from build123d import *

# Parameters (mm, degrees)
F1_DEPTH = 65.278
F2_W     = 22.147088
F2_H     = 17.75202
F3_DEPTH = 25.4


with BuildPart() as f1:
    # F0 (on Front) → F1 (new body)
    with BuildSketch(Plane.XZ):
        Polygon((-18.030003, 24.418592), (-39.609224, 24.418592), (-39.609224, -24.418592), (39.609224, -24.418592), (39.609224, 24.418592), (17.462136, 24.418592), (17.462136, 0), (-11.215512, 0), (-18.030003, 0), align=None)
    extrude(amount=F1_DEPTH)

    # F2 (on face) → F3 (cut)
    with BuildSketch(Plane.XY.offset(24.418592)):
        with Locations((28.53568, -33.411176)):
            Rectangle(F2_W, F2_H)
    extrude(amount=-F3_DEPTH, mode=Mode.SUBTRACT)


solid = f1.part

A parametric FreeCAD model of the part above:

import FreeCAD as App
import Part
import Sketcher
Q = App.Units.Quantity

doc = App.newDocument("Part")
params = doc.addObject("Spreadsheet::Sheet", "Params")
for row, (alias, value) in enumerate([
    ("pad1_length", "2.57 in"),
    ("pocket1_length", "1 in"),
], start=1):
    params.set(f"A{row}", alias)
    params.set(f"B{row}", "=" + value)
    params.setAlias(f"B{row}", alias)

body = doc.addObject("PartDesign::Body", "Body")

# Sketch on XZ plane
sketch1 = body.newObject("Sketcher::SketchObject", "Sketch")
sketch1.AttachmentSupport = (doc.getObject("XZ_Plane"), [""])
sketch1.MapMode = "FlatFace"
sketch1.addGeometry([
    Part.LineSegment(App.Vector(-18, 24, 0), App.Vector(-40, 24, 0)),  # 0
    Part.LineSegment(App.Vector(-40, 24, 0), App.Vector(-40, -24, 0)),  # 1
    Part.LineSegment(App.Vector(-40, -24, 0), App.Vector(40, -24, 0)),  # 2
    Part.LineSegment(App.Vector(40, -24, 0), App.Vector(40, 24, 0)),  # 3
    Part.LineSegment(App.Vector(40, 24, 0), App.Vector(17, 24, 0)),  # 4
    Part.LineSegment(App.Vector(17, 24, 0), App.Vector(17, 0, 0)),  # 5
    Part.LineSegment(App.Vector(17, 0, 0), App.Vector(-18, 0, 0)),  # 6
    Part.LineSegment(App.Vector(-18, 0, 0), App.Vector(-18, 24, 0)),  # 7
], False)
sketch1.addConstraint([
    Sketcher.Constraint("Coincident", 0, 2, 1, 1),
    Sketcher.Constraint("Coincident", 1, 2, 2, 1),
    Sketcher.Constraint("Coincident", 2, 2, 3, 1),
    Sketcher.Constraint("Coincident", 3, 2, 4, 1),
    Sketcher.Constraint("Coincident", 4, 2, 5, 1),
    Sketcher.Constraint("Coincident", 5, 2, 6, 1),
    Sketcher.Constraint("Coincident", 6, 2, 7, 1),
    Sketcher.Constraint("Coincident", 7, 2, 0, 1),
    Sketcher.Constraint("Horizontal", 0),
    Sketcher.Constraint("Vertical", 1),
    Sketcher.Constraint("Horizontal", 2),
    Sketcher.Constraint("Vertical", 3),
    Sketcher.Constraint("Horizontal", 4),
    Sketcher.Constraint("Vertical", 5),
    Sketcher.Constraint("Horizontal", 6),
    Sketcher.Constraint("Vertical", 7),
    Sketcher.Constraint("Symmetric", 0, 2, 2, 2, -1, 1),
    Sketcher.Constraint("PointOnObject", 5, 2, -1),
    Sketcher.Constraint("Horizontal", 0, 2, 3, 2),
    Sketcher.Constraint("DistanceX", 0, 2, 0, 1, Q("21.579221 mm")),
    Sketcher.Constraint("DistanceX", 6, 2, 6, 1, Q("35.492139 mm")),
    Sketcher.Constraint("DistanceX", 2, 1, 2, 2, Q("79.218448 mm")),
    Sketcher.Constraint("DistanceY", 1, 2, 1, 1, Q("48.837184 mm")),
])
pad1 = body.newObject("PartDesign::Pad", "Pad")
pad1.Profile = sketch1
pad1.setExpression("Length", "Params.pad1_length")

# Sketch on XY plane
sketch2 = body.newObject("Sketcher::SketchObject", "Sketch001")
sketch2.AttachmentSupport = (doc.getObject("XY_Plane"), [""])
sketch2.MapMode = "FlatFace"
sketch2.AttachmentOffset = App.Placement(App.Vector(0, 0, 24.418592), App.Rotation())
sketch2.addGeometry([
    Part.LineSegment(App.Vector(17, -25, 0), App.Vector(17, -42, 0)),
    Part.LineSegment(App.Vector(17, -42, 0), App.Vector(40, -42, 0)),
    Part.LineSegment(App.Vector(40, -42, 0), App.Vector(40, -25, 0)),
    Part.LineSegment(App.Vector(40, -25, 0), App.Vector(17, -25, 0)),
], False)
sketch2.addConstraint([
    Sketcher.Constraint("Coincident", 0, 2, 1, 1),
    Sketcher.Constraint("Coincident", 1, 2, 2, 1),
    Sketcher.Constraint("Coincident", 2, 2, 3, 1),
    Sketcher.Constraint("Coincident", 3, 2, 0, 1),
    Sketcher.Constraint("Vertical", 0),
    Sketcher.Constraint("Horizontal", 1),
    Sketcher.Constraint("Vertical", 2),
    Sketcher.Constraint("Horizontal", 3),
    Sketcher.Constraint("DistanceY", 0, 2, 0, 1, Q("17.75202 mm")),
    Sketcher.Constraint("DistanceX", 1, 1, 1, 2, Q("22.147088 mm")),
    Sketcher.Constraint("DistanceX", -1, 1, 0, 2, Q("17.462136 mm")),
    Sketcher.Constraint("DistanceY", 0, 2, -1, 1, Q("42.287186 mm")),
])
pocket1 = body.newObject("PartDesign::Pocket", "Pocket")
pocket1.Profile = sketch2
pocket1.setExpression("Length", "Params.pocket1_length")

doc.recompute()
